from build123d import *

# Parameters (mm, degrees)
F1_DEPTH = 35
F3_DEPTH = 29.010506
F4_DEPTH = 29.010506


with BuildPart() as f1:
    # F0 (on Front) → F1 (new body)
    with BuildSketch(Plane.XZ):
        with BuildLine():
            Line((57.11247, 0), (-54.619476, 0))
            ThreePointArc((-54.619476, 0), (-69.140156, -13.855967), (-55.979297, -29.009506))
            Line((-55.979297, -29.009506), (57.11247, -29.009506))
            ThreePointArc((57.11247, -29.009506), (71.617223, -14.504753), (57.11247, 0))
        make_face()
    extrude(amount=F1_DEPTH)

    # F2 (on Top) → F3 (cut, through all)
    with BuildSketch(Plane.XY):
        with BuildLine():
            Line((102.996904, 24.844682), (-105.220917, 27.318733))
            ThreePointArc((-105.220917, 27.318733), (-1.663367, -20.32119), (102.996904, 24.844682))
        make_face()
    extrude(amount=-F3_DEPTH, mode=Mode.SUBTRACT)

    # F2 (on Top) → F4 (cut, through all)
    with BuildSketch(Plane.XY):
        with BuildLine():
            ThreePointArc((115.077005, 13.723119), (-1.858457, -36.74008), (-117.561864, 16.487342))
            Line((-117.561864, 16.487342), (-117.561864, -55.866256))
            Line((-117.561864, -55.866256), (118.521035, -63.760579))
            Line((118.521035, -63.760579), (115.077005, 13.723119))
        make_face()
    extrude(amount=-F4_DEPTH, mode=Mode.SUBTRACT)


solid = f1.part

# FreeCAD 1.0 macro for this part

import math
import FreeCAD as App
import Part
import Sketcher

V = App.Vector
Q = App.Units.Quantity

doc = App.newDocument("Part")
body = doc.addObject("PartDesign::Body", "Body")

# Sketch on XZ plane
sketch1 = body.newObject("Sketcher::SketchObject", "Sketch")
sketch1.AttachmentSupport = (doc.getObject("XZ_Plane"), [""])
sketch1.MapMode = "FlatFace"
sketch1.addGeometry(Part.LineSegment(V(57, 0, 0), V(-55, 0, 0)), False)
sketch1.addGeometry(Part.ArcOfCircle(Part.Circle(V(-55, -15, 0), V(0, 0, 1), 15), math.radians(90), math.radians(265)), False)
sketch1.addGeometry(Part.LineSegment(V(-56, -29, 0), V(57, -29, 0)), False)
sketch1.addGeometry(Part.ArcOfCircle(Part.Circle(V(57, -15, 0), V(0, 0, 1), 15), math.radians(-90), math.radians(90)), False)
sketch1.addConstraint(Sketcher.Constraint("Tangent", 0, 2, 1, 1))
sketch1.addConstraint(Sketcher.Constraint("Coincident", 1, 2, 2, 1))
sketch1.addConstraint(Sketcher.Constraint("Tangent", 2, 2, 3, 1))
sketch1.addConstraint(Sketcher.Constraint("Tangent", 3, 2, 0, 1))
sketch1.addConstraint(Sketcher.Constraint("Horizontal", 0))
sketch1.addConstraint(Sketcher.Constraint("Horizontal", 2))
sketch1.addConstraint(Sketcher.Constraint("PointOnObject", 0, 2, -1))
sketch1.addConstraint(Sketcher.Constraint("Radius", 1, Q("14.536624 mm")))
sketch1.addConstraint(Sketcher.Constraint("Radius", 3, Q("14.504753 mm")))
sketch1.addConstraint(Sketcher.Constraint("DistanceX", 0, 2, 0, 1, Q("111.731946 mm")))
sketch1.addConstraint(Sketcher.Constraint("DistanceX", -1, 1, 3, 3, Q("57.11247 mm")))
pad1 = body.newObject("PartDesign::Pad", "Pad")
pad1.Profile = sketch1
pad1.Length = 35

# Sketch on XY plane
sketch2 = body.newObject("Sketcher::SketchObject", "Sketch001")
sketch2.AttachmentSupport = (doc.getObject("XY_Plane"), [""])
sketch2.MapMode = "FlatFace"
sketch2.addGeometry(Part.LineSegment(V(103, 25, 0), V(-105, 27, 0)), False)
sketch2.addGeometry(Part.ArcOfCircle(Part.Circle(V(0, 120, 0), V(0, 0, 1), 140), math.radians(-139), math.radians(-43)), False)
sketch2.addConstraint(Sketcher.Constraint("Coincident", 0, 1, 1, 2))
sketch2.addConstraint(Sketcher.Constraint("Coincident", 1, 1, 0, 2))
sketch2.addConstraint(Sketcher.Constraint("PointOnObject", 1, 3, -2))
sketch2.addConstraint(Sketcher.Constraint("Radius", 1, Q("139.999999 mm")))
sketch2.addConstraint(Sketcher.Constraint("Distance", 0, Q("208.232519 mm")))
sketch2.addConstraint(Sketcher.Constraint("DistanceY", -1, 1, 0, 1, Q("24.844682 mm")))
sketch2.addConstraint(Sketcher.Constraint("DistanceY", 0, 1, 1, 1, Q("2.474051 mm")))
pocket1 = body.newObject("PartDesign::Pocket", "Pocket")
pocket1.Profile = sketch2
pocket1.Type = "ThroughAll"

# Sketch on XY plane
sketch3 = body.newObject("Sketcher::SketchObject", "Sketch002")
sketch3.AttachmentSupport = (doc.getObject("XY_Plane"), [""])
sketch3.MapMode = "FlatFace"
sketch3.addGeometry(Part.ArcOfCircle(Part.Circle(V(0, 120, 0), V(0, 0, 1), 156), math.radians(-139), math.radians(-43)), False)
sketch3.addGeometry(Part.LineSegment(V(-118, 16, 0), V(-118, -56, 0)), False)
sketch3.addGeometry(Part.LineSegment(V(-118, -56, 0), V(119, -64, 0)), False)
sketch3.addGeometry(Part.LineSegment(V(119, -64, 0), V(115, 14, 0)), False)
sketch3.addConstraint(Sketcher.Constraint("Coincident", 0, 1, 1, 1))
sketch3.addConstraint(Sketcher.Constraint("Coincident", 1, 2, 2, 1))
sketch3.addConstraint(Sketcher.Constraint("Coincident", 2, 2, 3, 1))
sketch3.addConstraint(Sketcher.Constraint("Coincident", 3, 2, 0, 2))
sketch3.addConstraint(Sketcher.Constraint("Vertical", 1))
sketch3.addConstraint(Sketcher.Constraint("PointOnObject", 0, 3, -2))
sketch3.addConstraint(Sketcher.Constraint("DistanceY", 1, 2, 1, 1, Q("72.353598 mm")))
sketch3.addConstraint(Sketcher.Constraint("Radius", 0, Q("156.420048 mm")))
sketch3.addConstraint(Sketcher.Constraint("Distance", 3, Q("77.560201 mm")))
sketch3.addConstraint(Sketcher.Constraint("DistanceX", 1, 2, 2, 2, Q("236.082899 mm")))
sketch3.addConstraint(Sketcher.Constraint("DistanceY", 2, 2, 3, 2, Q("77.483698 mm")))
sketch3.addConstraint(Sketcher.Constraint("Distance", 2, Q("236.21485 mm")))
sketch3.addConstraint(Sketcher.Constraint("DistanceY", 2, 2, -1, 1, Q("63.760579 mm")))
pocket2 = body.newObject("PartDesign::Pocket", "Pocket001")
pocket2.Profile = sketch3
pocket2.Type = "ThroughAll"

doc.recompute()
